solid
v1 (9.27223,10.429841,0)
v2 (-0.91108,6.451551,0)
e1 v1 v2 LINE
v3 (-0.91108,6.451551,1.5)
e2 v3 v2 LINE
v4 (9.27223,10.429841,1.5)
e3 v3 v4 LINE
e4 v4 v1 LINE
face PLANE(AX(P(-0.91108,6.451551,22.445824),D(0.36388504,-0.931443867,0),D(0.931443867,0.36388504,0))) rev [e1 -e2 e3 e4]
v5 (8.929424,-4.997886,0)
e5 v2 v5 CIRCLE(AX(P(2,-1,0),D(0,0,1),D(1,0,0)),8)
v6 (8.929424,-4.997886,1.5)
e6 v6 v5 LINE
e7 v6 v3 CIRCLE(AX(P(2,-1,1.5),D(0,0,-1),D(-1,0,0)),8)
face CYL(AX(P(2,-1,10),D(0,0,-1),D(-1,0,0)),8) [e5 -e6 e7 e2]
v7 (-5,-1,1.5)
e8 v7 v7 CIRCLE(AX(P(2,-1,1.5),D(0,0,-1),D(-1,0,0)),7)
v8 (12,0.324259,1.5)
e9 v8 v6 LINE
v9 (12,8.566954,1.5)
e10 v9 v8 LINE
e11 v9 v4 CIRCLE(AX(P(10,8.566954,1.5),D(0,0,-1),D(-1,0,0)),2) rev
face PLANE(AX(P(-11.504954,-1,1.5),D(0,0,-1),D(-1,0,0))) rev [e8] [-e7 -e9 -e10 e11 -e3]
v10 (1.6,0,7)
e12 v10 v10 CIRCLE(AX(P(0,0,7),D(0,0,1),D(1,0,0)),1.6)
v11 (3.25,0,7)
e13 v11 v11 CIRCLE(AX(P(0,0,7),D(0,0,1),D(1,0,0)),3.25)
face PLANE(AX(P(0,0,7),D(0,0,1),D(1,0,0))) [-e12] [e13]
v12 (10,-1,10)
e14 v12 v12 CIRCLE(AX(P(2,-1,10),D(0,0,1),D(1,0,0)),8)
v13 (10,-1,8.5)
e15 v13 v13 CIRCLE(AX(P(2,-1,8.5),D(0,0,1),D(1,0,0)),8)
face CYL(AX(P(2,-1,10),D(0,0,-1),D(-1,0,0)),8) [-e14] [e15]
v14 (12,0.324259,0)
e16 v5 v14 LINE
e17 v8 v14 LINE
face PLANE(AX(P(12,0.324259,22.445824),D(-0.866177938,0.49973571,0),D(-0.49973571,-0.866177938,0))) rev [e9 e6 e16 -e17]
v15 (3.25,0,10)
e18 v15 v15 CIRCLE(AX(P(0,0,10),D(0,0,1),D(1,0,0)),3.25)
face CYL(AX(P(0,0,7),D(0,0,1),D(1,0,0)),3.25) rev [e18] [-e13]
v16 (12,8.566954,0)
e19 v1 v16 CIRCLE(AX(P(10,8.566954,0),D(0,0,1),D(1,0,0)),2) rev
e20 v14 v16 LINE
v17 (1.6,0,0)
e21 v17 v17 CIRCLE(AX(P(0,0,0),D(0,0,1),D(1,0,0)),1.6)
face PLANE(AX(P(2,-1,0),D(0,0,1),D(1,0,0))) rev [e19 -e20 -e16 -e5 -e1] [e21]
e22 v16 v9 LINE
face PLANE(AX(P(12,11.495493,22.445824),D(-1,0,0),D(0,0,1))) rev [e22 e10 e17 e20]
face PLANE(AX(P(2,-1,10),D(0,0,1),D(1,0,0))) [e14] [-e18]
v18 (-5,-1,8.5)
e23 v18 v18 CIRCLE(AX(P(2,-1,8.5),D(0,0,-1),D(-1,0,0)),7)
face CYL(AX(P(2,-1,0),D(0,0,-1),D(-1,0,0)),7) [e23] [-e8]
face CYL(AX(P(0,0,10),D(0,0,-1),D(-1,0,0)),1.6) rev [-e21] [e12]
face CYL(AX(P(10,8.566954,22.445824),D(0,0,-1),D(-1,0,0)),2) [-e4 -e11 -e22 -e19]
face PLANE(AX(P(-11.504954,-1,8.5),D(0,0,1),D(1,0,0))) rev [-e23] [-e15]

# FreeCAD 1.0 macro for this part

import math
import FreeCAD as App
import Part
import Sketcher

V = App.Vector
Q = App.Units.Quantity


def edges_at(feature, points):
    """Names of the edges that pass closest to the given points."""
    edges = feature.Shape.Edges
    near = lambda p: min(range(len(edges)), key=lambda i: edges[i].distToShape(Part.Vertex(*p))[0])
    return sorted({f"Edge{near(p) + 1}" for p in points})

doc = App.newDocument("Part")
body = doc.addObject("PartDesign::Body", "Body")

sketch1 = body.newObject("Sketcher::SketchObject", "Sketch")
sketch1.AttachmentSupport = (doc.getObject("XY_Plane"), [""])
sketch1.MapMode = "FlatFace"
sketch1.addGeometry([
    Part.Circle(V(2, -1, 0), V(0, 0, 1), 8),
    Part.Circle(V(0, 0, 0), V(0, 0, 1), 1.6),
], False)
sketch1.addConstraint([
    Sketcher.Constraint("Coincident", 1, 3, -1, 1),
    Sketcher.Constraint("Diameter", 0, Q("16 mm")),
    Sketcher.Constraint("Diameter", 1, Q("3.2 mm")),
    Sketcher.Constraint("DistanceX", -1, 1, 0, 3, Q("2 mm")),
    Sketcher.Constraint("DistanceY", 0, 3, -1, 1, Q("1 mm")),
])
pad1 = body.newObject("PartDesign::Pad", "Pad")
pad1.Profile = sketch1
pad1.Length = 10

sketch2 = body.newObject("Sketcher::SketchObject", "Sketch001")
sketch2.AttachmentSupport = (doc.getObject("XY_Plane"), [""])
sketch2.MapMode = "FlatFace"
sketch2.AttachmentOffset = App.Placement(V(0, 0, 10), App.Rotation())
sketch2.addGeometry(Part.Circle(V(0, 0, 0), V(0, 0, 1), 3.25), False)
sketch2.addConstraint([
    Sketcher.Constraint("Coincident", 0, 3, -1, 1),
    Sketcher.Constraint("Diameter", 0, Q("6.5 mm")),
])
pocket1 = body.newObject("PartDesign::Pocket", "Pocket")
pocket1.Profile = sketch2
pocket1.Length = 3

sketch3 = body.newObject("Sketcher::SketchObject", "Sketch002")
sketch3.AttachmentSupport = (doc.getObject("XZ_Plane"), [""])
sketch3.MapMode = "FlatFace"
sketch3.AttachmentOffset = App.Placement(V(0, 0, 1), App.Rotation())
sketch3.addGeometry([
    Part.LineSegment(V(-11.504954, 1.5, 0), V(-11.504954, 8.5, 0)),
    Part.LineSegment(V(-11.504954, 8.5, 0), V(-5, 8.5, 0)),
    Part.LineSegment(V(-5, 8.5, 0), V(-5, 1.5, 0)),
    Part.LineSegment(V(-5, 1.5, 0), V(-11.504954, 1.5, 0)),
], False)
sketch3.addGeometry(Part.LineSegment(V(2, 1.5, 0), V(2, 8.5, 0)), True)
sketch3.addConstraint([
    Sketcher.Constraint("Coincident", 0, 2, 1, 1),
    Sketcher.Constraint("Coincident", 1, 2, 2, 1),
    Sketcher.Constraint("Coincident", 2, 2, 3, 1),
    Sketcher.Constraint("Coincident", 3, 2, 0, 1),
    Sketcher.Constraint("Vertical", 0),
    Sketcher.Constraint("Horizontal", 1),
    Sketcher.Constraint("Vertical", 2),
    Sketcher.Constraint("Horizontal", 3),
    Sketcher.Constraint("Vertical", 4),
    Sketcher.Constraint("Horizontal", 3, 2, 4, 1),
    Sketcher.Constraint("Horizontal", 1, 2, 4, 2),
    Sketcher.Constraint("DistanceY", 0, 1, 0, 2, Q("7 mm")),
    Sketcher.Constraint("DistanceX", 1, 2, -1, 1, Q("5 mm")),
    Sketcher.Constraint("DistanceX", -1, 1, 4, 1, Q("2 mm")),
    Sketcher.Constraint("DistanceY", -1, 1, 0, 2, Q("8.5 mm")),
    Sketcher.Constraint("DistanceX", 1, 1, 1, 2, Q("6.504954 mm")),
])
groove = body.newObject("PartDesign::Groove", "Groove")
groove.Profile = sketch3
groove.ReferenceAxis = (sketch3, ["Axis0"])
groove.Angle = 360

sketch4 = body.newObject("Sketcher::SketchObject", "Sketch003")
sketch4.AttachmentSupport = (doc.getObject("XY_Plane"), [""])
sketch4.MapMode = "FlatFace"
sketch4.addGeometry([
    Part.LineSegment(V(12, 11.495493, 0), V(-0.91108, 6.451551, 0)),
    Part.ArcOfCircle(Part.Circle(V(2, -1, 0), V(0, 0, 1), 8), math.radians(-29.982516), math.radians(111.338982)),
    Part.LineSegment(V(8.929424, -4.997886, 0), V(12, 0.324259, 0)),
    Part.LineSegment(V(12, 0.324259, 0), V(12, 11.495493, 0)),
], False)
sketch4.addConstraint([
    Sketcher.Constraint("Tangent", 0, 2, 1, 2),
    Sketcher.Constraint("Tangent", 1, 1, 2, 1),
    Sketcher.Constraint("Coincident", 2, 2, 3, 1),
    Sketcher.Constraint("Coincident", 3, 2, 0, 1),
    Sketcher.Constraint("Vertical", 3),
    Sketcher.Constraint("Radius", 1, Q("8 mm")),
    Sketcher.Constraint("DistanceX", -1, 1, 1, 3, Q("2 mm")),
    Sketcher.Constraint("DistanceY", 1, 3, -1, 1, Q("1 mm")),
    Sketcher.Constraint("DistanceX", -1, 1, 2, 2, Q("12 mm")),
    Sketcher.Constraint("Distance", 2, Q("6.144401 mm")),
    Sketcher.Constraint("Distance", 0, Q("13.861362 mm")),
])
pad2 = body.newObject("PartDesign::Pad", "Pad001")
pad2.Profile = sketch4
pad2.Length = 1.5
doc.recompute()

fillet = body.newObject("PartDesign::Fillet", "Fillet")
fillet.Base = (pad2, edges_at(pad2, [(12, 11.495, 0.75)]))
fillet.Radius = 2

doc.recompute()
